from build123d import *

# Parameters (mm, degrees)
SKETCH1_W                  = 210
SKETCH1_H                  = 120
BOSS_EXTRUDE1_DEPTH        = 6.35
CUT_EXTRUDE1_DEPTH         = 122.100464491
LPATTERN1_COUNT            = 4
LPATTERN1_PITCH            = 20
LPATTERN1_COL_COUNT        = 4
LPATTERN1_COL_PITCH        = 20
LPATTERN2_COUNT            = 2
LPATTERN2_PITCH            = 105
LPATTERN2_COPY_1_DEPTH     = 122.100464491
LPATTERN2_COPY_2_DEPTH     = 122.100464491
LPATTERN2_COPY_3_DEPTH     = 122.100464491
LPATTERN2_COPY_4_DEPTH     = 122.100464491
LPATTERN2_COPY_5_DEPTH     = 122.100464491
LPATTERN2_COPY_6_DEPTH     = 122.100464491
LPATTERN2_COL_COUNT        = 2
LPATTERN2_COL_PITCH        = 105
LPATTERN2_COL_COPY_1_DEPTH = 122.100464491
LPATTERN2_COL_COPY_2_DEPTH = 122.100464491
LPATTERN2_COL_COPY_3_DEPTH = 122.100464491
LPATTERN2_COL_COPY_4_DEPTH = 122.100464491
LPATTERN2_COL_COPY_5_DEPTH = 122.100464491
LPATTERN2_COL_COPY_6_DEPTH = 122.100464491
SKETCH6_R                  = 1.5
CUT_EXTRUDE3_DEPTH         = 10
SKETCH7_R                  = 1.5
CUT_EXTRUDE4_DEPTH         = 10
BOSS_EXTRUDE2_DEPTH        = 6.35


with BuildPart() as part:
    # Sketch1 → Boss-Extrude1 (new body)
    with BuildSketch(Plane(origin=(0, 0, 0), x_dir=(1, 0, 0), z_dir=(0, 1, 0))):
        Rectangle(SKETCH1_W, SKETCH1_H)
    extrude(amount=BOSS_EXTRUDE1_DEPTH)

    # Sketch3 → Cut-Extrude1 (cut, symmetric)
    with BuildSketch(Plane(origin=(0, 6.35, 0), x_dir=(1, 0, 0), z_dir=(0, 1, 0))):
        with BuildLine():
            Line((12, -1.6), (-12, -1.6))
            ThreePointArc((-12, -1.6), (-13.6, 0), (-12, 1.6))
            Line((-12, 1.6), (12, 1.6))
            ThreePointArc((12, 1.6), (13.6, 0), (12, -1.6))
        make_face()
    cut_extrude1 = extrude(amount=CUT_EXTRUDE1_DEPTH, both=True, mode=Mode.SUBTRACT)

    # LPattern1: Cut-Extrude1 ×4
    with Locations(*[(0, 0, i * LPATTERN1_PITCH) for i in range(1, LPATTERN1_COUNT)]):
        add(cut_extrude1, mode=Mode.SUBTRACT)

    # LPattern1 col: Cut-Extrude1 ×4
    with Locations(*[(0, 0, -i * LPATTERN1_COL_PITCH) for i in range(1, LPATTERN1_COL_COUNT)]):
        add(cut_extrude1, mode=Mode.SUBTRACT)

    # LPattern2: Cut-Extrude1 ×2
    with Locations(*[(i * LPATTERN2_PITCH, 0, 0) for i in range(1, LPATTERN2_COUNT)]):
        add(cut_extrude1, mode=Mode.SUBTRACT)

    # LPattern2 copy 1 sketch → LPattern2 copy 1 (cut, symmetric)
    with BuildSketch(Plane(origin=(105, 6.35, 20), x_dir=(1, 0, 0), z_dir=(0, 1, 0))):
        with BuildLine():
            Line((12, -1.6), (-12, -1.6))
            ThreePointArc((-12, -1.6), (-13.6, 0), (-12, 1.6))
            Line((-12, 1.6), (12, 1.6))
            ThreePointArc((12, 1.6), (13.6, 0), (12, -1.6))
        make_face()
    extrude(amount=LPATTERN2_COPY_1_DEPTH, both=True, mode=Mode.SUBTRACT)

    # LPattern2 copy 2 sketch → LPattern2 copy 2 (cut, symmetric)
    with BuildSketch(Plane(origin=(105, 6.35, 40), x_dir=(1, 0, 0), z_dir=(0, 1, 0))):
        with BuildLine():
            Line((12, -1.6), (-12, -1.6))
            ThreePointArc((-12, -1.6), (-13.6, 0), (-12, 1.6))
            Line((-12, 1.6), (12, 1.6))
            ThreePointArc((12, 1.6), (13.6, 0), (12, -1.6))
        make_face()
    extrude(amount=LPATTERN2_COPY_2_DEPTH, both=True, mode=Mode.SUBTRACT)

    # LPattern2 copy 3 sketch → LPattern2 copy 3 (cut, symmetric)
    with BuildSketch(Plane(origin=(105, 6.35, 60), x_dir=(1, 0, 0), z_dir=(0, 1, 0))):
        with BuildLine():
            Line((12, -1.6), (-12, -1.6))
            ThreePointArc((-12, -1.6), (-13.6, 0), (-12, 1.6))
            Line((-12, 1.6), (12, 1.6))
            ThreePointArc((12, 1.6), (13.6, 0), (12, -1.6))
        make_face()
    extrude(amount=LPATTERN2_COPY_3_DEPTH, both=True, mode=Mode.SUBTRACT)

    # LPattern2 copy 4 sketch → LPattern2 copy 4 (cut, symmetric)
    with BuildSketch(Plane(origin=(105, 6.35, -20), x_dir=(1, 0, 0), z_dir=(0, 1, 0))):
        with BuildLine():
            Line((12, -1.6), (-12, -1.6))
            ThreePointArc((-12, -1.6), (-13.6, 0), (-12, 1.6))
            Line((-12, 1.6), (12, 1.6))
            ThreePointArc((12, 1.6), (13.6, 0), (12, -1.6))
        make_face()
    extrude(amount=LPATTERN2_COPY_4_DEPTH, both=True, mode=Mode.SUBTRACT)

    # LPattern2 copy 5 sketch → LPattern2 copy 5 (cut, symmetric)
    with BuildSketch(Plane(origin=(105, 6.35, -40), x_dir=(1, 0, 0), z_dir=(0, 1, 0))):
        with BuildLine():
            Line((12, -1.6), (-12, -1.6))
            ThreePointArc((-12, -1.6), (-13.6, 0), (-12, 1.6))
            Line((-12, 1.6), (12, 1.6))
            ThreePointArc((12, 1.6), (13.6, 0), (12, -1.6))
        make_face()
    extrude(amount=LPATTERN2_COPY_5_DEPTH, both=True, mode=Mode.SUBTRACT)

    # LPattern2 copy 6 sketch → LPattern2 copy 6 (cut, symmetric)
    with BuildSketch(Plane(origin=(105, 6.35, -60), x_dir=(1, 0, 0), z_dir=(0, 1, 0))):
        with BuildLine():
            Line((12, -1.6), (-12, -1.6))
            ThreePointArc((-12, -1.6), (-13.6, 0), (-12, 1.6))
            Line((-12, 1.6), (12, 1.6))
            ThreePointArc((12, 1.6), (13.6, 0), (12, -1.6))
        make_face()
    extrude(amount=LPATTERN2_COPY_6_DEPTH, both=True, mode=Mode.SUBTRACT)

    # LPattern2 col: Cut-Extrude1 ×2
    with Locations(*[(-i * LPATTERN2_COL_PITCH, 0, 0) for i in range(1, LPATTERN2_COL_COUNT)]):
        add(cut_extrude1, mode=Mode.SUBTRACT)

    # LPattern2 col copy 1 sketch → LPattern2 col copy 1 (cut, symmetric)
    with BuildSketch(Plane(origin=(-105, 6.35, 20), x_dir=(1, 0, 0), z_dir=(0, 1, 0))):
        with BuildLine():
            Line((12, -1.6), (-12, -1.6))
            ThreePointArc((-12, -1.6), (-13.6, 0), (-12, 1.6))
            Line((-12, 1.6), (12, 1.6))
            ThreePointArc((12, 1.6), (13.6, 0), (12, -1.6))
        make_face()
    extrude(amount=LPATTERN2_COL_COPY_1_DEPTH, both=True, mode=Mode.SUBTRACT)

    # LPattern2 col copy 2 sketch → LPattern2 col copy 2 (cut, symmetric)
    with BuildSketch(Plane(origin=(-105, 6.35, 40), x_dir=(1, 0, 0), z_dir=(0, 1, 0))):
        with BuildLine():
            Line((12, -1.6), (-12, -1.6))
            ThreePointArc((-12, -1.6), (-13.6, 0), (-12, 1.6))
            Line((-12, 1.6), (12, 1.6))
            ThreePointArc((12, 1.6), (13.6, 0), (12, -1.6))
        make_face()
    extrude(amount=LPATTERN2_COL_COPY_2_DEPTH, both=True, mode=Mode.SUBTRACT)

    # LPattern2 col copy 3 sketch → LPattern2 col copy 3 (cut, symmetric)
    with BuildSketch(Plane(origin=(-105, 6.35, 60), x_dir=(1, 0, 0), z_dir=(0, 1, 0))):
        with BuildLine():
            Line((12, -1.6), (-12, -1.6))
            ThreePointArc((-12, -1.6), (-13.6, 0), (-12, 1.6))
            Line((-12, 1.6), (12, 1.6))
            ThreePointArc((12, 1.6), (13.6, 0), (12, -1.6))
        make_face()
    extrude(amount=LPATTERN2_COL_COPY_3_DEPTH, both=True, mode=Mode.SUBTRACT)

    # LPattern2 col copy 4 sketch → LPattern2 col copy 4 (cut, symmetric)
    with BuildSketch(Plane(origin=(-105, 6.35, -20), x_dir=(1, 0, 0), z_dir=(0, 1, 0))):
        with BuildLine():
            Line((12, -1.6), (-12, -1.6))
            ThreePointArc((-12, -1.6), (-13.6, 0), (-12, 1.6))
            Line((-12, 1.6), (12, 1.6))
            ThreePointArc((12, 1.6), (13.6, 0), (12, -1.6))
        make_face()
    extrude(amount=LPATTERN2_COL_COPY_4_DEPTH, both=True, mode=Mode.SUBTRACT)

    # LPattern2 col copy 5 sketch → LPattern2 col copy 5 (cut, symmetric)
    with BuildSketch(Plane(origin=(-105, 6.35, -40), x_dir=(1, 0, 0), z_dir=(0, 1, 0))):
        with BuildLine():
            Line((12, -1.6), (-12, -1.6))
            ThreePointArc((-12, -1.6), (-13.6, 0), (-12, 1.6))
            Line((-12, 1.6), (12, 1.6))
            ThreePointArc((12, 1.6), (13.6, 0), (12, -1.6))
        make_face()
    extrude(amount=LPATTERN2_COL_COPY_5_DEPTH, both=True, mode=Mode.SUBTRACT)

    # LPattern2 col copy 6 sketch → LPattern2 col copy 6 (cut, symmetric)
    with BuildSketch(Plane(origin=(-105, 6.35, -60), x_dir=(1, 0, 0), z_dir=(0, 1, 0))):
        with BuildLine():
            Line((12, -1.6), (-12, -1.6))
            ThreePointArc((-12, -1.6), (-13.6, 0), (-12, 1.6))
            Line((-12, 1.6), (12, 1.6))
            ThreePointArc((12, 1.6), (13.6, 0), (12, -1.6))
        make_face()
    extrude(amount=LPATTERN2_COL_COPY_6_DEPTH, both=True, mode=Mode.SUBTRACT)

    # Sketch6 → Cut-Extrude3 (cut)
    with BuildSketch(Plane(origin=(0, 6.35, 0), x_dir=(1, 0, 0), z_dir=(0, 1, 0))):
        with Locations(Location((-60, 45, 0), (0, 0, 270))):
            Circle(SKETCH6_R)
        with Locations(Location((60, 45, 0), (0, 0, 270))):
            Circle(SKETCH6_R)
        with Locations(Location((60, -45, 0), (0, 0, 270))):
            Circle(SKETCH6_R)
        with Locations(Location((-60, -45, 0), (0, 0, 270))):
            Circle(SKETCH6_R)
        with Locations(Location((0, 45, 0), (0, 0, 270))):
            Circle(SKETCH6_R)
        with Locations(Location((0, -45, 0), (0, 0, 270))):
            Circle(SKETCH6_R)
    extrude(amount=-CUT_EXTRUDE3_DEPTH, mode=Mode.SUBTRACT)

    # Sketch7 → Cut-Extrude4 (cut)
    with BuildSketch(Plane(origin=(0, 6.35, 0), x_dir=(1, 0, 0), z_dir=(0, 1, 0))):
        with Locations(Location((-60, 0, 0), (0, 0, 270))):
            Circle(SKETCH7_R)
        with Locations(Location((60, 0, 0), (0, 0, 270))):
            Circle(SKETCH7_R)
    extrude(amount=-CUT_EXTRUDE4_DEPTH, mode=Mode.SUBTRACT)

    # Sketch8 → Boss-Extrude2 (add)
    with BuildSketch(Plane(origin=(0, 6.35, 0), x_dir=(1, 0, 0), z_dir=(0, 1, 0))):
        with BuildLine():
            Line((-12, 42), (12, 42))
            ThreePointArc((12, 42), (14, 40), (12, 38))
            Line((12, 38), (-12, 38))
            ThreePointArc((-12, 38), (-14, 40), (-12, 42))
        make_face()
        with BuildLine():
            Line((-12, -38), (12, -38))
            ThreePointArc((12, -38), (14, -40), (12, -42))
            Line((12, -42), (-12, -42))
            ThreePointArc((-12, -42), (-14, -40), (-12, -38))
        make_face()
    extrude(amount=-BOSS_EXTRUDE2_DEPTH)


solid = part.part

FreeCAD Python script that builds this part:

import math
import FreeCAD as App
import Part
import Sketcher

doc = App.newDocument("Part")
body = doc.addObject("PartDesign::Body", "Body")

# Sketch on XZ plane
sketch1 = body.newObject("Sketcher::SketchObject", "Sketch")
sketch1.AttachmentSupport = (doc.getObject("XZ_Plane"), [""])
sketch1.MapMode = "FlatFace"
sketch1.addGeometry([
    Part.LineSegment(App.Vector(-105, -60, 0), App.Vector(-105, 60, 0)),
    Part.LineSegment(App.Vector(-105, 60, 0), App.Vector(105, 60, 0)),
    Part.LineSegment(App.Vector(105, 60, 0), App.Vector(105, -60, 0)),
    Part.LineSegment(App.Vector(105, -60, 0), App.Vector(-105, -60, 0)),
], False)
sketch1.addConstraint([
    Sketcher.Constraint("Coincident", 0, 2, 1, 1),
    Sketcher.Constraint("Coincident", 1, 2, 2, 1),
    Sketcher.Constraint("Coincident", 2, 2, 3, 1),
    Sketcher.Constraint("Coincident", 3, 2, 0, 1),
    Sketcher.Constraint("Vertical", 0),
    Sketcher.Constraint("Horizontal", 1),
    Sketcher.Constraint("Vertical", 2),
    Sketcher.Constraint("Horizontal", 3),
    Sketcher.Constraint("Symmetric", 0, 2, 2, 2, -1, 1),
    Sketcher.Constraint("DistanceX", 1, 1, 1, 2, 210.0),
    Sketcher.Constraint("DistanceY", 0, 1, 0, 2, 120.0),
])
pad1 = body.newObject("PartDesign::Pad", "Pad")
pad1.Profile = sketch1
pad1.Length = 6.35
pad1.Reversed = True

# Sketch on XZ plane
sketch2 = body.newObject("Sketcher::SketchObject", "Sketch001")
sketch2.AttachmentSupport = (doc.getObject("XZ_Plane"), [""])
sketch2.MapMode = "FlatFace"
sketch2.AttachmentOffset = App.Placement(App.Vector(0, 0, -6.35), App.Rotation())
sketch2.addGeometry([
    Part.LineSegment(App.Vector(-12, 1.6, 0), App.Vector(12, 1.6, 0)),
    Part.ArcOfCircle(Part.Circle(App.Vector(12, 0, 0), App.Vector(0, 0, 1), 1.6), math.radians(-90), math.radians(90)),
    Part.LineSegment(App.Vector(12, -1.6, 0), App.Vector(-12, -1.6, 0)),
    Part.ArcOfCircle(Part.Circle(App.Vector(-12, 0, 0), App.Vector(0, 0, 1), 1.6), math.radians(90), math.radians(270)),
], False)
sketch2.addConstraint([
    Sketcher.Constraint("Tangent", 0, 2, 1, 2),
    Sketcher.Constraint("Tangent", 1, 1, 2, 1),
    Sketcher.Constraint("Tangent", 2, 2, 3, 2),
    Sketcher.Constraint("Tangent", 3, 1, 0, 1),
    Sketcher.Constraint("Horizontal", 0),
    Sketcher.Constraint("Horizontal", 2),
    Sketcher.Constraint("Symmetric", 1, 3, 3, 3, -1, 1),
    Sketcher.Constraint("Radius", 1, 1.6),
    Sketcher.Constraint("DistanceX", 0, 1, 0, 2, 24.0),
])
pocket1 = body.newObject("PartDesign::Pocket", "Pocket")
pocket1.Profile = sketch2
pocket1.Length = 244.200929
pocket1.Midplane = True
doc.recompute()

linearpattern = body.newObject("PartDesign::LinearPattern", "LinearPattern")
linearpattern.Originals = [pocket1]
linearpattern.Direction = (doc.getObject("Z_Axis"), [""])
linearpattern.Mode = "offset"
linearpattern.Offset = 20
linearpattern.Occurrences = 4
body.Tip = linearpattern
doc.recompute()

linearpattern2 = body.newObject("PartDesign::LinearPattern", "LinearPattern001")
linearpattern2.Originals = [pocket1]
linearpattern2.Direction = (doc.getObject("Z_Axis"), [""])
linearpattern2.Mode = "offset"
linearpattern2.Offset = 20
linearpattern2.Occurrences = 4
linearpattern2.Reversed = True
body.Tip = linearpattern2
doc.recompute()

linearpattern3 = body.newObject("PartDesign::LinearPattern", "LinearPattern002")
linearpattern3.Originals = [pocket1]
linearpattern3.Direction = (doc.getObject("X_Axis"), [""])
linearpattern3.Mode = "offset"
linearpattern3.Offset = 105
linearpattern3.Occurrences = 2
body.Tip = linearpattern3

# Sketch on XZ plane
sketch3 = body.newObject("Sketcher::SketchObject", "Sketch002")
sketch3.AttachmentSupport = (doc.getObject("XZ_Plane"), [""])
sketch3.MapMode = "FlatFace"
sketch3.AttachmentOffset = App.Placement(App.Vector(0, 0, -6.35), App.Rotation())
sketch3.addGeometry([
    Part.LineSegment(App.Vector(93, 21.6, 0), App.Vector(117, 21.6, 0)),
    Part.ArcOfCircle(Part.Circle(App.Vector(117, 20, 0), App.Vector(0, 0, 1), 1.6), math.radians(-90), math.radians(90)),
    Part.LineSegment(App.Vector(117, 18.4, 0), App.Vector(93, 18.4, 0)),
    Part.ArcOfCircle(Part.Circle(App.Vector(93, 20, 0), App.Vector(0, 0, 1), 1.6), math.radians(90), math.radians(270)),
], False)
sketch3.addConstraint([
    Sketcher.Constraint("Tangent", 0, 2, 1, 2),
    Sketcher.Constraint("Tangent", 1, 1, 2, 1),
    Sketcher.Constraint("Tangent", 2, 2, 3, 2),
    Sketcher.Constraint("Tangent", 3, 1, 0, 1),
    Sketcher.Constraint("Horizontal", 0),
    Sketcher.Constraint("Horizontal", 2),
    Sketcher.Constraint("Radius", 1, 1.6),
    Sketcher.Constraint("DistanceX", 0, 1, 0, 2, 24.0),
    Sketcher.Constraint("DistanceX", -1, 1, 1, 3, 117.0),
    Sketcher.Constraint("DistanceY", -1, 1, 1, 3, 20.0),
])
pocket2 = body.newObject("PartDesign::Pocket", "Pocket001")
pocket2.Profile = sketch3
pocket2.Length = 244.200929
pocket2.Midplane = True

# Sketch on XZ plane
sketch4 = body.newObject("Sketcher::SketchObject", "Sketch003")
sketch4.AttachmentSupport = (doc.getObject("XZ_Plane"), [""])
sketch4.MapMode = "FlatFace"
sketch4.AttachmentOffset = App.Placement(App.Vector(0, 0, -6.35), App.Rotation())
sketch4.addGeometry([
    Part.LineSegment(App.Vector(93, 41.6, 0), App.Vector(117, 41.6, 0)),
    Part.ArcOfCircle(Part.Circle(App.Vector(117, 40, 0), App.Vector(0, 0, 1), 1.6), math.radians(-90), math.radians(90)),
    Part.LineSegment(App.Vector(117, 38.4, 0), App.Vector(93, 38.4, 0)),
    Part.ArcOfCircle(Part.Circle(App.Vector(93, 40, 0), App.Vector(0, 0, 1), 1.6), math.radians(90), math.radians(270)),
], False)
sketch4.addConstraint([
    Sketcher.Constraint("Tangent", 0, 2, 1, 2),
    Sketcher.Constraint("Tangent", 1, 1, 2, 1),
    Sketcher.Constraint("Tangent", 2, 2, 3, 2),
    Sketcher.Constraint("Tangent", 3, 1, 0, 1),
    Sketcher.Constraint("Horizontal", 0),
    Sketcher.Constraint("Horizontal", 2),
    Sketcher.Constraint("Radius", 1, 1.6),
    Sketcher.Constraint("DistanceX", 0, 1, 0, 2, 24.0),
    Sketcher.Constraint("DistanceX", -1, 1, 1, 3, 117.0),
    Sketcher.Constraint("DistanceY", -1, 1, 1, 3, 40.0),
])
pocket3 = body.newObject("PartDesign::Pocket", "Pocket002")
pocket3.Profile = sketch4
pocket3.Length = 244.200929
pocket3.Midplane = True

# Sketch on XZ plane
sketch5 = body.newObject("Sketcher::SketchObject", "Sketch004")
sketch5.AttachmentSupport = (doc.getObject("XZ_Plane"), [""])
sketch5.MapMode = "FlatFace"
sketch5.AttachmentOffset = App.Placement(App.Vector(0, 0, -6.35), App.Rotation())
sketch5.addGeometry([
    Part.LineSegment(App.Vector(93, 61.6, 0), App.Vector(117, 61.6, 0)),
    Part.ArcOfCircle(Part.Circle(App.Vector(117, 60, 0), App.Vector(0, 0, 1), 1.6), math.radians(-90), math.radians(90)),
    Part.LineSegment(App.Vector(117, 58.4, 0), App.Vector(93, 58.4, 0)),
    Part.ArcOfCircle(Part.Circle(App.Vector(93, 60, 0), App.Vector(0, 0, 1), 1.6), math.radians(90), math.radians(270)),
], False)
sketch5.addConstraint([
    Sketcher.Constraint("Tangent", 0, 2, 1, 2),
    Sketcher.Constraint("Tangent", 1, 1, 2, 1),
    Sketcher.Constraint("Tangent", 2, 2, 3, 2),
    Sketcher.Constraint("Tangent", 3, 1, 0, 1),
    Sketcher.Constraint("Horizontal", 0),
    Sketcher.Constraint("Horizontal", 2),
    Sketcher.Constraint("Radius", 1, 1.6),
    Sketcher.Constraint("DistanceX", 0, 1, 0, 2, 24.0),
    Sketcher.Constraint("DistanceX", -1, 1, 1, 3, 117.0),
    Sketcher.Constraint("DistanceY", -1, 1, 1, 3, 60.0),
])
pocket4 = body.newObject("PartDesign::Pocket", "Pocket003")
pocket4.Profile = sketch5
pocket4.Length = 244.200929
pocket4.Midplane = True

# Sketch on XZ plane
sketch6 = body.newObject("Sketcher::SketchObject", "Sketch005")
sketch6.AttachmentSupport = (doc.getObject("XZ_Plane"), [""])
sketch6.MapMode = "FlatFace"
sketch6.AttachmentOffset = App.Placement(App.Vector(0, 0, -6.35), App.Rotation())
sketch6.addGeometry([
    Part.LineSegment(App.Vector(93, -18.4, 0), App.Vector(117, -18.4, 0)),
    Part.ArcOfCircle(Part.Circle(App.Vector(117, -20, 0), App.Vector(0, 0, 1), 1.6), math.radians(-90), math.radians(90)),
    Part.LineSegment(App.Vector(117, -21.6, 0), App.Vector(93, -21.6, 0)),
    Part.ArcOfCircle(Part.Circle(App.Vector(93, -20, 0), App.Vector(0, 0, 1), 1.6), math.radians(90), math.radians(270)),
], False)
sketch6.addConstraint([
    Sketcher.Constraint("Tangent", 0, 2, 1, 2),
    Sketcher.Constraint("Tangent", 1, 1, 2, 1),
    Sketcher.Constraint("Tangent", 2, 2, 3, 2),
    Sketcher.Constraint("Tangent", 3, 1, 0, 1),
    Sketcher.Constraint("Horizontal", 0),
    Sketcher.Constraint("Horizontal", 2),
    Sketcher.Constraint("Radius", 1, 1.6),
    Sketcher.Constraint("DistanceX", 0, 1, 0, 2, 24.0),
    Sketcher.Constraint("DistanceX", -1, 1, 1, 3, 117.0),
    Sketcher.Constraint("DistanceY", 1, 3, -1, 1, 20.0),
])
pocket5 = body.newObject("PartDesign::Pocket", "Pocket004")
pocket5.Profile = sketch6
pocket5.Length = 244.200929
pocket5.Midplane = True

# Sketch on XZ plane
sketch7 = body.newObject("Sketcher::SketchObject", "Sketch006")
sketch7.AttachmentSupport = (doc.getObject("XZ_Plane"), [""])
sketch7.MapMode = "FlatFace"
sketch7.AttachmentOffset = App.Placement(App.Vector(0, 0, -6.35), App.Rotation())
sketch7.addGeometry([
    Part.LineSegment(App.Vector(93, -38.4, 0), App.Vector(117, -38.4, 0)),
    Part.ArcOfCircle(Part.Circle(App.Vector(117, -40, 0), App.Vector(0, 0, 1), 1.6), math.radians(-90), math.radians(90)),
    Part.LineSegment(App.Vector(117, -41.6, 0), App.Vector(93, -41.6, 0)),
    Part.ArcOfCircle(Part.Circle(App.Vector(93, -40, 0), App.Vector(0, 0, 1), 1.6), math.radians(90), math.radians(270)),
], False)
sketch7.addConstraint([
    Sketcher.Constraint("Tangent", 0, 2, 1, 2),
    Sketcher.Constraint("Tangent", 1, 1, 2, 1),
    Sketcher.Constraint("Tangent", 2, 2, 3, 2),
    Sketcher.Constraint("Tangent", 3, 1, 0, 1),
    Sketcher.Constraint("Horizontal", 0),
    Sketcher.Constraint("Horizontal", 2),
    Sketcher.Constraint("Radius", 1, 1.6),
    Sketcher.Constraint("DistanceX", 0, 1, 0, 2, 24.0),
    Sketcher.Constraint("DistanceX", -1, 1, 1, 3, 117.0),
    Sketcher.Constraint("DistanceY", 1, 3, -1, 1, 40.0),
])
pocket6 = body.newObject("PartDesign::Pocket", "Pocket005")
pocket6.Profile = sketch7
pocket6.Length = 244.200929
pocket6.Midplane = True

# Sketch on XZ plane
sketch8 = body.newObject("Sketcher::SketchObject", "Sketch007")
sketch8.AttachmentSupport = (doc.getObject("XZ_Plane"), [""])
sketch8.MapMode = "FlatFace"
sketch8.AttachmentOffset = App.Placement(App.Vector(0, 0, -6.35), App.Rotation())
sketch8.addGeometry([
    Part.LineSegment(App.Vector(93, -58.4, 0), App.Vector(117, -58.4, 0)),
    Part.ArcOfCircle(Part.Circle(App.Vector(117, -60, 0), App.Vector(0, 0, 1), 1.6), math.radians(-90), math.radians(90)),
    Part.LineSegment(App.Vector(117, -61.6, 0), App.Vector(93, -61.6, 0)),
    Part.ArcOfCircle(Part.Circle(App.Vector(93, -60, 0), App.Vector(0, 0, 1), 1.6), math.radians(90), math.radians(270)),
], False)
sketch8.addConstraint([
    Sketcher.Constraint("Tangent", 0, 2, 1, 2),
    Sketcher.Constraint("Tangent", 1, 1, 2, 1),
    Sketcher.Constraint("Tangent", 2, 2, 3, 2),
    Sketcher.Constraint("Tangent", 3, 1, 0, 1),
    Sketcher.Constraint("Horizontal", 0),
    Sketcher.Constraint("Horizontal", 2),
    Sketcher.Constraint("Radius", 1, 1.6),
    Sketcher.Constraint("DistanceX", 0, 1, 0, 2, 24.0),
    Sketcher.Constraint("DistanceX", -1, 1, 1, 3, 117.0),
    Sketcher.Constraint("DistanceY", 1, 3, -1, 1, 60.0),
])
pocket7 = body.newObject("PartDesign::Pocket", "Pocket006")
pocket7.Profile = sketch8
pocket7.Length = 244.200929
pocket7.Midplane = True
doc.recompute()

linearpattern4 = body.newObject("PartDesign::LinearPattern", "LinearPattern003")
linearpattern4.Originals = [pocket1]
linearpattern4.Direction = (doc.getObject("X_Axis"), [""])
linearpattern4.Mode = "offset"
linearpattern4.Offset = 105
linearpattern4.Occurrences = 2
linearpattern4.Reversed = True
body.Tip = linearpattern4

# Sketch on XZ plane
sketch9 = body.newObject("Sketcher::SketchObject", "Sketch008")
sketch9.AttachmentSupport = (doc.getObject("XZ_Plane"), [""])
sketch9.MapMode = "FlatFace"
sketch9.AttachmentOffset = App.Placement(App.Vector(0, 0, -6.35), App.Rotation())
sketch9.addGeometry([
    Part.LineSegment(App.Vector(-117, 21.6, 0), App.Vector(-93, 21.6, 0)),
    Part.ArcOfCircle(Part.Circle(App.Vector(-93, 20, 0), App.Vector(0, 0, 1), 1.6), math.radians(-90), math.radians(90)),
    Part.LineSegment(App.Vector(-93, 18.4, 0), App.Vector(-117, 18.4, 0)),
    Part.ArcOfCircle(Part.Circle(App.Vector(-117, 20, 0), App.Vector(0, 0, 1), 1.6), math.radians(90), math.radians(270)),
], False)
sketch9.addConstraint([
    Sketcher.Constraint("Tangent", 0, 2, 1, 2),
    Sketcher.Constraint("Tangent", 1, 1, 2, 1),
    Sketcher.Constraint("Tangent", 2, 2, 3, 2),
    Sketcher.Constraint("Tangent", 3, 1, 0, 1),
    Sketcher.Constraint("Horizontal", 0),
    Sketcher.Constraint("Horizontal", 2),
    Sketcher.Constraint("Radius", 1, 1.6),
    Sketcher.Constraint("DistanceX", 0, 1, 0, 2, 24.0),
    Sketcher.Constraint("DistanceX", 1, 3, -1, 1, 93.0),
    Sketcher.Constraint("DistanceY", -1, 1, 1, 3, 20.0),
])
pocket8 = body.newObject("PartDesign::Pocket", "Pocket007")
pocket8.Profile = sketch9
pocket8.Length = 244.200929
pocket8.Midplane = True

# Sketch on XZ plane
sketch10 = body.newObject("Sketcher::SketchObject", "Sketch009")
sketch10.AttachmentSupport = (doc.getObject("XZ_Plane"), [""])
sketch10.MapMode = "FlatFace"
sketch10.AttachmentOffset = App.Placement(App.Vector(0, 0, -6.35), App.Rotation())
sketch10.addGeometry([
    Part.LineSegment(App.Vector(-117, 41.6, 0), App.Vector(-93, 41.6, 0)),
    Part.ArcOfCircle(Part.Circle(App.Vector(-93, 40, 0), App.Vector(0, 0, 1), 1.6), math.radians(-90), math.radians(90)),
    Part.LineSegment(App.Vector(-93, 38.4, 0), App.Vector(-117, 38.4, 0)),
    Part.ArcOfCircle(Part.Circle(App.Vector(-117, 40, 0), App.Vector(0, 0, 1), 1.6), math.radians(90), math.radians(270)),
], False)
sketch10.addConstraint([
    Sketcher.Constraint("Tangent", 0, 2, 1, 2),
    Sketcher.Constraint("Tangent", 1, 1, 2, 1),
    Sketcher.Constraint("Tangent", 2, 2, 3, 2),
    Sketcher.Constraint("Tangent", 3, 1, 0, 1),
    Sketcher.Constraint("Horizontal", 0),
    Sketcher.Constraint("Horizontal", 2),
    Sketcher.Constraint("Radius", 1, 1.6),
    Sketcher.Constraint("DistanceX", 0, 1, 0, 2, 24.0),
    Sketcher.Constraint("DistanceX", 1, 3, -1, 1, 93.0),
    Sketcher.Constraint("DistanceY", -1, 1, 1, 3, 40.0),
])
pocket9 = body.newObject("PartDesign::Pocket", "Pocket008")
pocket9.Profile = sketch10
pocket9.Length = 244.200929
pocket9.Midplane = True

# Sketch on XZ plane
sketch11 = body.newObject("Sketcher::SketchObject", "Sketch010")
sketch11.AttachmentSupport = (doc.getObject("XZ_Plane"), [""])
sketch11.MapMode = "FlatFace"
sketch11.AttachmentOffset = App.Placement(App.Vector(0, 0, -6.35), App.Rotation())
sketch11.addGeometry([
    Part.LineSegment(App.Vector(-117, 61.6, 0), App.Vector(-93, 61.6, 0)),
    Part.ArcOfCircle(Part.Circle(App.Vector(-93, 60, 0), App.Vector(0, 0, 1), 1.6), math.radians(-90), math.radians(90)),
    Part.LineSegment(App.Vector(-93, 58.4, 0), App.Vector(-117, 58.4, 0)),
    Part.ArcOfCircle(Part.Circle(App.Vector(-117, 60, 0), App.Vector(0, 0, 1), 1.6), math.radians(90), math.radians(270)),
], False)
sketch11.addConstraint([
    Sketcher.Constraint("Tangent", 0, 2, 1, 2),
    Sketcher.Constraint("Tangent", 1, 1, 2, 1),
    Sketcher.Constraint("Tangent", 2, 2, 3, 2),
    Sketcher.Constraint("Tangent", 3, 1, 0, 1),
    Sketcher.Constraint("Horizontal", 0),
    Sketcher.Constraint("Horizontal", 2),
    Sketcher.Constraint("Radius", 1, 1.6),
    Sketcher.Constraint("DistanceX", 0, 1, 0, 2, 24.0),
    Sketcher.Constraint("DistanceX", 1, 3, -1, 1, 93.0),
    Sketcher.Constraint("DistanceY", -1, 1, 1, 3, 60.0),
])
pocket10 = body.newObject("PartDesign::Pocket", "Pocket009")
pocket10.Profile = sketch11
pocket10.Length = 244.200929
pocket10.Midplane = True

# Sketch on XZ plane
sketch12 = body.newObject("Sketcher::SketchObject", "Sketch011")
sketch12.AttachmentSupport = (doc.getObject("XZ_Plane"), [""])
sketch12.MapMode = "FlatFace"
sketch12.AttachmentOffset = App.Placement(App.Vector(0, 0, -6.35), App.Rotation())
sketch12.addGeometry([
    Part.LineSegment(App.Vector(-117, -18.4, 0), App.Vector(-93, -18.4, 0)),
    Part.ArcOfCircle(Part.Circle(App.Vector(-93, -20, 0), App.Vector(0, 0, 1), 1.6), math.radians(-90), math.radians(90)),
    Part.LineSegment(App.Vector(-93, -21.6, 0), App.Vector(-117, -21.6, 0)),
    Part.ArcOfCircle(Part.Circle(App.Vector(-117, -20, 0), App.Vector(0, 0, 1), 1.6), math.radians(90), math.radians(270)),
], False)
sketch12.addConstraint([
    Sketcher.Constraint("Tangent", 0, 2, 1, 2),
    Sketcher.Constraint("Tangent", 1, 1, 2, 1),
    Sketcher.Constraint("Tangent", 2, 2, 3, 2),
    Sketcher.Constraint("Tangent", 3, 1, 0, 1),
    Sketcher.Constraint("Horizontal", 0),
    Sketcher.Constraint("Horizontal", 2),
    Sketcher.Constraint("Radius", 1, 1.6),
    Sketcher.Constraint("DistanceX", 0, 1, 0, 2, 24.0),
    Sketcher.Constraint("DistanceX", 1, 3, -1, 1, 93.0),
    Sketcher.Constraint("DistanceY", 1, 3, -1, 1, 20.0),
])
pocket11 = body.newObject("PartDesign::Pocket", "Pocket010")
pocket11.Profile = sketch12
pocket11.Length = 244.200929
pocket11.Midplane = True

# Sketch on XZ plane
sketch13 = body.newObject("Sketcher::SketchObject", "Sketch012")
sketch13.AttachmentSupport = (doc.getObject("XZ_Plane"), [""])
sketch13.MapMode = "FlatFace"
sketch13.AttachmentOffset = App.Placement(App.Vector(0, 0, -6.35), App.Rotation())
sketch13.addGeometry([
    Part.LineSegment(App.Vector(-117, -38.4, 0), App.Vector(-93, -38.4, 0)),
    Part.ArcOfCircle(Part.Circle(App.Vector(-93, -40, 0), App.Vector(0, 0, 1), 1.6), math.radians(-90), math.radians(90)),
    Part.LineSegment(App.Vector(-93, -41.6, 0), App.Vector(-117, -41.6, 0)),
    Part.ArcOfCircle(Part.Circle(App.Vector(-117, -40, 0), App.Vector(0, 0, 1), 1.6), math.radians(90), math.radians(270)),
], False)
sketch13.addConstraint([
    Sketcher.Constraint("Tangent", 0, 2, 1, 2),
    Sketcher.Constraint("Tangent", 1, 1, 2, 1),
    Sketcher.Constraint("Tangent", 2, 2, 3, 2),
    Sketcher.Constraint("Tangent", 3, 1, 0, 1),
    Sketcher.Constraint("Horizontal", 0),
    Sketcher.Constraint("Horizontal", 2),
    Sketcher.Constraint("Radius", 1, 1.6),
    Sketcher.Constraint("DistanceX", 0, 1, 0, 2, 24.0),
    Sketcher.Constraint("DistanceX", 1, 3, -1, 1, 93.0),
    Sketcher.Constraint("DistanceY", 1, 3, -1, 1, 40.0),
])
pocket12 = body.newObject("PartDesign::Pocket", "Pocket011")
pocket12.Profile = sketch13
pocket12.Length = 244.200929
pocket12.Midplane = True

# Sketch on XZ plane
sketch14 = body.newObject("Sketcher::SketchObject", "Sketch013")
sketch14.AttachmentSupport = (doc.getObject("XZ_Plane"), [""])
sketch14.MapMode = "FlatFace"
sketch14.AttachmentOffset = App.Placement(App.Vector(0, 0, -6.35), App.Rotation())
sketch14.addGeometry([
    Part.LineSegment(App.Vector(-117, -58.4, 0), App.Vector(-93, -58.4, 0)),
    Part.ArcOfCircle(Part.Circle(App.Vector(-93, -60, 0), App.Vector(0, 0, 1), 1.6), math.radians(-90), math.radians(90)),
    Part.LineSegment(App.Vector(-93, -61.6, 0), App.Vector(-117, -61.6, 0)),
    Part.ArcOfCircle(Part.Circle(App.Vector(-117, -60, 0), App.Vector(0, 0, 1), 1.6), math.radians(90), math.radians(270)),
], False)
sketch14.addConstraint([
    Sketcher.Constraint("Tangent", 0, 2, 1, 2),
    Sketcher.Constraint("Tangent", 1, 1, 2, 1),
    Sketcher.Constraint("Tangent", 2, 2, 3, 2),
    Sketcher.Constraint("Tangent", 3, 1, 0, 1),
    Sketcher.Constraint("Horizontal", 0),
    Sketcher.Constraint("Horizontal", 2),
    Sketcher.Constraint("Radius", 1, 1.6),
    Sketcher.Constraint("DistanceX", 0, 1, 0, 2, 24.0),
    Sketcher.Constraint("DistanceX", 1, 3, -1, 1, 93.0),
    Sketcher.Constraint("DistanceY", 1, 3, -1, 1, 60.0),
])
pocket13 = body.newObject("PartDesign::Pocket", "Pocket012")
pocket13.Profile = sketch14
pocket13.Length = 244.200929
pocket13.Midplane = True

# Sketch on XZ plane
sketch15 = body.newObject("Sketcher::SketchObject", "Sketch014")
sketch15.AttachmentSupport = (doc.getObject("XZ_Plane"), [""])
sketch15.MapMode = "FlatFace"
sketch15.AttachmentOffset = App.Placement(App.Vector(0, 0, -6.35), App.Rotation())
sketch15.addGeometry([
    Part.Circle(App.Vector(-60, -45, 0), App.Vector(0, 0, 1), 1.5),  # 0
    Part.Circle(App.Vector(60, -45, 0), App.Vector(0, 0, 1), 1.5),  # 1
    Part.Circle(App.Vector(60, 45, 0), App.Vector(0, 0, 1), 1.5),  # 2
    Part.Circle(App.Vector(-60, 45, 0), App.Vector(0, 0, 1), 1.5),  # 3
    Part.Circle(App.Vector(0, -45, 0), App.Vector(0, 0, 1), 1.5),  # 4
    Part.Circle(App.Vector(0, 45, 0), App.Vector(0, 0, 1), 1.5),  # 5
], False)
sketch15.addConstraint([
    Sketcher.Constraint("Equal", 0, 1),
    Sketcher.Constraint("Equal", 1, 2),
    Sketcher.Constraint("Equal", 2, 3),
    Sketcher.Constraint("Equal", 3, 4),
    Sketcher.Constraint("Equal", 4, 5),
    Sketcher.Constraint("Symmetric", 0, 3, 2, 3, -1, 1),
    Sketcher.Constraint("Symmetric", 1, 3, 3, 3, -1, 1),
    Sketcher.Constraint("Symmetric", 4, 3, 5, 3, -1, 1),
    Sketcher.Constraint("Symmetric", 0, 3, 1, 3, -2),
    Sketcher.Constraint("PointOnObject", 4, 3, -2),
    Sketcher.Constraint("Horizontal", 1, 3, 4, 3),
    Sketcher.Constraint("Diameter", 0, 3.0),
    Sketcher.Constraint("DistanceX", 0, 3, -1, 1, 60.0),
    Sketcher.Constraint("DistanceY", 0, 3, -1, 1, 45.0),
])
pocket14 = body.newObject("PartDesign::Pocket", "Pocket013")
pocket14.Profile = sketch15
pocket14.Length = 10
pocket14.Reversed = True

# Sketch on XZ plane
sketch16 = body.newObject("Sketcher::SketchObject", "Sketch015")
sketch16.AttachmentSupport = (doc.getObject("XZ_Plane"), [""])
sketch16.MapMode = "FlatFace"
sketch16.AttachmentOffset = App.Placement(App.Vector(0, 0, -6.35), App.Rotation())
sketch16.addGeometry([
    Part.Circle(App.Vector(-60, 0, 0), App.Vector(0, 0, 1), 1.5),
    Part.Circle(App.Vector(60, 0, 0), App.Vector(0, 0, 1), 1.5),
], False)
sketch16.addConstraint([
    Sketcher.Constraint("Equal", 0, 1),
    Sketcher.Constraint("Symmetric", 0, 3, 1, 3, -1, 1),
    Sketcher.Constraint("PointOnObject", 0, 3, -1),
    Sketcher.Constraint("Diameter", 0, 3.0),
    Sketcher.Constraint("DistanceX", 0, 3, -1, 1, 60.0),
])
pocket15 = body.newObject("PartDesign::Pocket", "Pocket014")
pocket15.Profile = sketch16
pocket15.Length = 10
pocket15.Reversed = True

# Sketch on XZ plane
sketch17 = body.newObject("Sketcher::SketchObject", "Sketch016")
sketch17.AttachmentSupport = (doc.getObject("XZ_Plane"), [""])
sketch17.MapMode = "FlatFace"
sketch17.AttachmentOffset = App.Placement(App.Vector(0, 0, -6.35), App.Rotation())
sketch17.addGeometry([
    Part.LineSegment(App.Vector(12, -42, 0), App.Vector(-12, -42, 0)),  # 0
    Part.ArcOfCircle(Part.Circle(App.Vector(-12, -40, 0), App.Vector(0, 0, 1), 2), math.radians(90), math.radians(270)),  # 1
    Part.LineSegment(App.Vector(-12, -38, 0), App.Vector(12, -38, 0)),  # 2
    Part.ArcOfCircle(Part.Circle(App.Vector(12, -40, 0), App.Vector(0, 0, 1), 2), math.radians(-90), math.radians(90)),  # 3
    Part.LineSegment(App.Vector(12, 38, 0), App.Vector(-12, 38, 0)),  # 4
    Part.ArcOfCircle(Part.Circle(App.Vector(-12, 40, 0), App.Vector(0, 0, 1), 2), math.radians(90), math.radians(270)),  # 5
    Part.LineSegment(App.Vector(-12, 42, 0), App.Vector(12, 42, 0)),  # 6
    Part.ArcOfCircle(Part.Circle(App.Vector(12, 40, 0), App.Vector(0, 0, 1), 2), math.radians(-90), math.radians(90)),  # 7
], False)
sketch17.addConstraint([
    Sketcher.Constraint("Tangent", 0, 2, 1, 2),
    Sketcher.Constraint("Tangent", 1, 1, 2, 1),
    Sketcher.Constraint("Tangent", 2, 2, 3, 2),
    Sketcher.Constraint("Tangent", 3, 1, 0, 1),
    Sketcher.Constraint("Tangent", 4, 2, 5, 2),
    Sketcher.Constraint("Tangent", 5, 1, 6, 1),
    Sketcher.Constraint("Tangent", 6, 2, 7, 2),
    Sketcher.Constraint("Tangent", 7, 1, 4, 1),
    Sketcher.Constraint("Horizontal", 0),
    Sketcher.Constraint("Horizontal", 2),
    Sketcher.Constraint("Horizontal", 4),
    Sketcher.Constraint("Horizontal", 6),
    Sketcher.Constraint("Equal", 3, 5),
    Sketcher.Constraint("Symmetric", 3, 3, 5, 3, -1, 1),
    Sketcher.Constraint("Vertical", 1, 3, 5, 3),
    Sketcher.Constraint("Vertical", 3, 3, 7, 3),
    Sketcher.Constraint("Radius", 1, 2.0),
    Sketcher.Constraint("DistanceX", 0, 2, 0, 1, 24.0),
    Sketcher.Constraint("DistanceY", 1, 3, -1, 1, 40.0),
])
pad2 = body.newObject("PartDesign::Pad", "Pad001")
pad2.Profile = sketch17
pad2.Length = 6.35

doc.recompute()
